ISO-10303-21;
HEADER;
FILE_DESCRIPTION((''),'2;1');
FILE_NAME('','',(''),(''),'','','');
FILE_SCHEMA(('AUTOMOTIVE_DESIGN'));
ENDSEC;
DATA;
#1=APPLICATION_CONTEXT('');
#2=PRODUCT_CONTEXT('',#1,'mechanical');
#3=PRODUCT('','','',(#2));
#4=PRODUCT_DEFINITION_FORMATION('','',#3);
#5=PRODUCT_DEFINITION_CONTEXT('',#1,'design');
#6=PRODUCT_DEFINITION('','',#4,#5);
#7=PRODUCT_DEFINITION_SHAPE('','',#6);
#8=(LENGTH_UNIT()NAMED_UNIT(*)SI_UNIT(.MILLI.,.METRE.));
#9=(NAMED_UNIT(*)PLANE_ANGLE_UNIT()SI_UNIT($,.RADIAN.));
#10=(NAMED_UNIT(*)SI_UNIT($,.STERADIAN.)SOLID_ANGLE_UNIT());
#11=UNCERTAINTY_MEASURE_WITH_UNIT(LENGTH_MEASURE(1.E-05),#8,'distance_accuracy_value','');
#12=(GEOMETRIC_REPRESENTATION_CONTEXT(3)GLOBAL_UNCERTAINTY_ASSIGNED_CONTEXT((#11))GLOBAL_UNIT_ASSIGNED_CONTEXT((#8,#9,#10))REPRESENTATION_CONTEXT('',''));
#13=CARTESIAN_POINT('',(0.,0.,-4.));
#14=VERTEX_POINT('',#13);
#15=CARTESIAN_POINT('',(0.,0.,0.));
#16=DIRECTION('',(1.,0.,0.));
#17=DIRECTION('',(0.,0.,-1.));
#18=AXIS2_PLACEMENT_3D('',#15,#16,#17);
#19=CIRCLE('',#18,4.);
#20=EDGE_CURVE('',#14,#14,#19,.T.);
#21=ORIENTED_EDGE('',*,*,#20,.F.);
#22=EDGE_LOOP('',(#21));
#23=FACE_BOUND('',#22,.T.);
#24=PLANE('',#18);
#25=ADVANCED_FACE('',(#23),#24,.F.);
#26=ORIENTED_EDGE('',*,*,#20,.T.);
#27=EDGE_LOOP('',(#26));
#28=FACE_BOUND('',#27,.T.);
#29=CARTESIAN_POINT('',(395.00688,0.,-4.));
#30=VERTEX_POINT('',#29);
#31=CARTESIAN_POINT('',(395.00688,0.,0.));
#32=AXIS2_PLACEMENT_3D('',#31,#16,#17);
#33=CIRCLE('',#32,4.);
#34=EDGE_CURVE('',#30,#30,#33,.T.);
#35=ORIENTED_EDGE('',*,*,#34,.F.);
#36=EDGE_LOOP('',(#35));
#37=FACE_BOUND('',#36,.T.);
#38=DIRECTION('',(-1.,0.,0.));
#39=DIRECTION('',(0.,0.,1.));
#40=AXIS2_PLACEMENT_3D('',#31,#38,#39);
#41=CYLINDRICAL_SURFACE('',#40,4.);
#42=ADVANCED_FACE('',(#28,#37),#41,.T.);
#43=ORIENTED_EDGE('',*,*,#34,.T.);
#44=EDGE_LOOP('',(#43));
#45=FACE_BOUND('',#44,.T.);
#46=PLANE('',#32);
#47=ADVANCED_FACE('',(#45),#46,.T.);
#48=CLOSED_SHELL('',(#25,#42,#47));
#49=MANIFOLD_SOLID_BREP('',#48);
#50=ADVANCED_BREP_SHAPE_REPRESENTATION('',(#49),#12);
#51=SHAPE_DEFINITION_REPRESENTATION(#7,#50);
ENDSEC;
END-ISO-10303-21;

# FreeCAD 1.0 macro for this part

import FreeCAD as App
import Part
import Sketcher

V = App.Vector

doc = App.newDocument("Part")
body = doc.addObject("PartDesign::Body", "Body")

# Sketch on YZ plane
sketch1 = body.newObject("Sketcher::SketchObject", "Sketch")
sketch1.AttachmentSupport = (doc.getObject("YZ_Plane"), [""])
sketch1.MapMode = "FlatFace"
sketch1.addGeometry(Part.Circle(V(0, 0, 0), V(0, 0, 1), 4), False)
sketch1.addConstraint([
    Sketcher.Constraint("Coincident", 0, 3, -1, 1),
    Sketcher.Constraint("Diameter", 0, 8.0),
])
pad1 = body.newObject("PartDesign::Pad", "Pad")
pad1.Profile = sketch1
pad1.Length = 395.00688

doc.recompute()
